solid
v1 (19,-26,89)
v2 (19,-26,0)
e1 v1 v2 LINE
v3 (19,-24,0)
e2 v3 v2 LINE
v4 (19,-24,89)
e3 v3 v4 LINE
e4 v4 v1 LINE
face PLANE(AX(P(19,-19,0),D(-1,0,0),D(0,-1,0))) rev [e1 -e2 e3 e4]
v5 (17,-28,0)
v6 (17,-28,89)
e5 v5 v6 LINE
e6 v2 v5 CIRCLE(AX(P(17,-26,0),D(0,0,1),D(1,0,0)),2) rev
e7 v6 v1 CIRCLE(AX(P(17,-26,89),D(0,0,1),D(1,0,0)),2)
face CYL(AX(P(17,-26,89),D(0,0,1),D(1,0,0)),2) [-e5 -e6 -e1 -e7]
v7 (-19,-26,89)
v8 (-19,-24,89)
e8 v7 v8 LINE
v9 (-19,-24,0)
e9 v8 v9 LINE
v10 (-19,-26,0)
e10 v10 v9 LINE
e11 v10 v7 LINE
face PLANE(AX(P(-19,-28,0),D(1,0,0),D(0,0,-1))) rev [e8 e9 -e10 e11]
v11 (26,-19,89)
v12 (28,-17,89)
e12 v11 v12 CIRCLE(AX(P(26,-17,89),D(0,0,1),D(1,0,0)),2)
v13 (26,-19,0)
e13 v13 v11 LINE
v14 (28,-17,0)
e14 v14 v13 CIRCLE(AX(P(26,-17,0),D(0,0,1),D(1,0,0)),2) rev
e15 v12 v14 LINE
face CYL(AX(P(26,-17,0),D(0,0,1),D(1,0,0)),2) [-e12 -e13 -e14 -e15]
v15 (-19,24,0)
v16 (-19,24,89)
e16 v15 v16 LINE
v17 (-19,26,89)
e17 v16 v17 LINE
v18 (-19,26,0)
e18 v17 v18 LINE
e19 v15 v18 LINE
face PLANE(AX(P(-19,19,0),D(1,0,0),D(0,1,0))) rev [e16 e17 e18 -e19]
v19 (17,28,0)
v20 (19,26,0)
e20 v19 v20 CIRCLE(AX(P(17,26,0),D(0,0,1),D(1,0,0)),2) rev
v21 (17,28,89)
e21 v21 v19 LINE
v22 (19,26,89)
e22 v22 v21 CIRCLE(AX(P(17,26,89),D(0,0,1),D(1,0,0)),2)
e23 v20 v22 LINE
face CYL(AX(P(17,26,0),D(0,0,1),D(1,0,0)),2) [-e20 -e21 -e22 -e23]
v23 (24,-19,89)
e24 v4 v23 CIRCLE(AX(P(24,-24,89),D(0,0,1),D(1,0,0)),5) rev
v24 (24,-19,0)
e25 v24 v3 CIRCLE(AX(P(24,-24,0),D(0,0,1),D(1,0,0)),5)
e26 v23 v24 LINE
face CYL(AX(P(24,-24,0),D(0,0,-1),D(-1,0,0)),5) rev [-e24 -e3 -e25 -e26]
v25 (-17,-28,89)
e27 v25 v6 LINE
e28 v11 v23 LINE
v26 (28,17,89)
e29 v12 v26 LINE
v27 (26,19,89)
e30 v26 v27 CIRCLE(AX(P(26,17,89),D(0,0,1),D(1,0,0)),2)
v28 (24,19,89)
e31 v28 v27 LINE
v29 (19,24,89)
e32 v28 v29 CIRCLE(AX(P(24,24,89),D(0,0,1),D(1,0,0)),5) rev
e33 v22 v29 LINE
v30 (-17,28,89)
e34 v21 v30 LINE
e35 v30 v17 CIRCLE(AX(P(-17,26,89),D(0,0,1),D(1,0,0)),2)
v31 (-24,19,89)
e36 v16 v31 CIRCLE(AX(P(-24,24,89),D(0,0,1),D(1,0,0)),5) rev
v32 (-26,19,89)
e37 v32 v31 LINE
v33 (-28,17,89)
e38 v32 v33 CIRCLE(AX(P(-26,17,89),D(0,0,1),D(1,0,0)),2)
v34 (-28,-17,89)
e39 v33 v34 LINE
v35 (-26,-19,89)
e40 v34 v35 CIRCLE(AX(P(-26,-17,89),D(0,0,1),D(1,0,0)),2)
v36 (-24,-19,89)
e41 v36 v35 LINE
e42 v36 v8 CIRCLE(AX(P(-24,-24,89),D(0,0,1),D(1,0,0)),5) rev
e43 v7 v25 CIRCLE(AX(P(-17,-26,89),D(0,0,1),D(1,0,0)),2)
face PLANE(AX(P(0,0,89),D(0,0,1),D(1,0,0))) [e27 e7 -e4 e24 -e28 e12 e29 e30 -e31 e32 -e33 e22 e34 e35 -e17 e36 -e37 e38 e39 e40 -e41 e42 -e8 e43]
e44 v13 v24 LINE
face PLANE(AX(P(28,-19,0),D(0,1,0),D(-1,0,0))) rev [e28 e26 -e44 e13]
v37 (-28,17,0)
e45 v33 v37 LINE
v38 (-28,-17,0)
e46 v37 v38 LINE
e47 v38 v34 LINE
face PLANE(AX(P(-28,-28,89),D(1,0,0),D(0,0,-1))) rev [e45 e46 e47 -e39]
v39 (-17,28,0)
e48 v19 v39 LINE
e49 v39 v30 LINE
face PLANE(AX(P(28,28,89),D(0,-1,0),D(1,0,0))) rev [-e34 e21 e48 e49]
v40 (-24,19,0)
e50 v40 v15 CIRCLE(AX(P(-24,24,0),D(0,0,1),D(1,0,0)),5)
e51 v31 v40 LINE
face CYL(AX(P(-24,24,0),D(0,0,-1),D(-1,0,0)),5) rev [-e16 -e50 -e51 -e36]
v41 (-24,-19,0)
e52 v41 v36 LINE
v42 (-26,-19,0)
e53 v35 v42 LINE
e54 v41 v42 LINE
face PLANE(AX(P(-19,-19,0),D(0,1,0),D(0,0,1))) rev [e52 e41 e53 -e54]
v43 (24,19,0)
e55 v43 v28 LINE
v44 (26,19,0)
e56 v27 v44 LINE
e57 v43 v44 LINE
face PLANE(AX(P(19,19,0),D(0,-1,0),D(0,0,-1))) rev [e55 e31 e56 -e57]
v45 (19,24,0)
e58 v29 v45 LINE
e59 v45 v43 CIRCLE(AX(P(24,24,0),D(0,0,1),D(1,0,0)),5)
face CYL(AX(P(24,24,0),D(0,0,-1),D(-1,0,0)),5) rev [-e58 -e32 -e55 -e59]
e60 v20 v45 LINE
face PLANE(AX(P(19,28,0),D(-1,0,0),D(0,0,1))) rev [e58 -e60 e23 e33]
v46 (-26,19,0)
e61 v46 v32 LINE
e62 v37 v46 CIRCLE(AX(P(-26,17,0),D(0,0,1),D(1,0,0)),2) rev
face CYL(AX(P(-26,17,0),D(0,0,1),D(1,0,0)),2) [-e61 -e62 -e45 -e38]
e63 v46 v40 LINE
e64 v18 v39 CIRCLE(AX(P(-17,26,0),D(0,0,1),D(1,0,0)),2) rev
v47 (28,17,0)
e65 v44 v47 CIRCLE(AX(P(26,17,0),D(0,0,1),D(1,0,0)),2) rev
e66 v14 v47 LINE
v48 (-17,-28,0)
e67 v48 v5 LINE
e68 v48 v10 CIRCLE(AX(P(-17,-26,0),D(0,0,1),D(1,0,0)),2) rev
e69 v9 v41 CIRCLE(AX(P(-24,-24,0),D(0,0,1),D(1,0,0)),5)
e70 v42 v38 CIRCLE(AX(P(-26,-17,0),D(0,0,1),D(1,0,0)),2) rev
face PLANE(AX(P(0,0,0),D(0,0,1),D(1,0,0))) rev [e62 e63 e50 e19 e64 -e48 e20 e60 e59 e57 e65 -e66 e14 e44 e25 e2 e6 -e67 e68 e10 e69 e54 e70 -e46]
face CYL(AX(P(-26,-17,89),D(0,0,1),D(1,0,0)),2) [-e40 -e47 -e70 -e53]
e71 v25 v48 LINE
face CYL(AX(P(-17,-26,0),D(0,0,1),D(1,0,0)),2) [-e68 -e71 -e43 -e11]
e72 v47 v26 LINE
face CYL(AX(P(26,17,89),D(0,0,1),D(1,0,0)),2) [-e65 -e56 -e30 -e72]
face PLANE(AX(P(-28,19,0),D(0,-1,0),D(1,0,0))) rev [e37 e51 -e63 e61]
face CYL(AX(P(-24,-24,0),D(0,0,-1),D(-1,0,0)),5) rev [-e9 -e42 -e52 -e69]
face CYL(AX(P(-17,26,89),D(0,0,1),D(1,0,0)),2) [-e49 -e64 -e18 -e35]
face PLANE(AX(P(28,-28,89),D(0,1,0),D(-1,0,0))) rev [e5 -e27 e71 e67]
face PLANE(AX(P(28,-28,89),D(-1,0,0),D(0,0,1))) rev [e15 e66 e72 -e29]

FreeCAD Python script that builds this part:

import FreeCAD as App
import Part
import Sketcher
from FreeCAD import Vector
Q = App.Units.Quantity


def edges_at(feature, points):
    """Names of the edges that pass closest to the given points."""
    edges = feature.Shape.Edges
    near = lambda p: min(range(len(edges)), key=lambda i: edges[i].distToShape(Part.Vertex(*p))[0])
    return sorted({f"Edge{near(p) + 1}" for p in points})

doc = App.newDocument("Part")
params = doc.addObject("Spreadsheet::Sheet", "Params")
for row, (alias, value) in enumerate([
    ("sketch1_width", "56 mm"),
    ("pad1_length", "89 mm"),
    ("sketch2_width", "9 mm"),
    ("pocket1_length", "89 mm"),
    ("fillet_radius", "5 mm"),
    ("fillet2_radius", "2 mm"),
], start=1):
    params.set(f"A{row}", alias)
    params.set(f"B{row}", "=" + value)
    params.setAlias(f"B{row}", alias)

body = doc.addObject("PartDesign::Body", "Body")

# Sketch on XY plane
sketch1 = doc.addObject("Sketcher::SketchObject", "Sketch")
body.addObject(sketch1)
sketch1.AttachmentSupport = (doc.XY_Plane, [""])
sketch1.MapMode = "FlatFace"
sketch1.addGeometry(Part.LineSegment(Vector(-28, 28, 0), Vector(-28, -28, 0)), False)
sketch1.addGeometry(Part.LineSegment(Vector(-28, -28, 0), Vector(28, -28, 0)), False)
sketch1.addGeometry(Part.LineSegment(Vector(28, -28, 0), Vector(28, 28, 0)), False)
sketch1.addGeometry(Part.LineSegment(Vector(28, 28, 0), Vector(-28, 28, 0)), False)
sketch1.addConstraint(Sketcher.Constraint("Coincident", 0, 2, 1, 1))
sketch1.addConstraint(Sketcher.Constraint("Coincident", 1, 2, 2, 1))
sketch1.addConstraint(Sketcher.Constraint("Coincident", 2, 2, 3, 1))
sketch1.addConstraint(Sketcher.Constraint("Coincident", 3, 2, 0, 1))
sketch1.addConstraint(Sketcher.Constraint("Vertical", 0))
sketch1.addConstraint(Sketcher.Constraint("Horizontal", 1))
sketch1.addConstraint(Sketcher.Constraint("Vertical", 2))
sketch1.addConstraint(Sketcher.Constraint("Horizontal", 3))
sketch1.addConstraint(Sketcher.Constraint("Symmetric", 0, 2, 2, 2, -1, 1))
sketch1.addConstraint(Sketcher.Constraint("Equal", 3, 0))
sketch1.addConstraint(Sketcher.Constraint("DistanceX", 1, 1, 1, 2, Q("56 mm")))
sketch1.setExpression("Constraints[10]", "Params.sketch1_width")
pad1 = doc.addObject("PartDesign::Pad", "Pad")
body.addObject(pad1)
pad1.Profile = sketch1
pad1.setExpression("Length", "Params.pad1_length")

# Sketch on XY plane
sketch2 = doc.addObject("Sketcher::SketchObject", "Sketch001")
body.addObject(sketch2)
sketch2.AttachmentSupport = (doc.XY_Plane, [""])
sketch2.MapMode = "FlatFace"
sketch2.AttachmentOffset = App.Placement(Vector(0, 0, 89), App.Rotation())
sketch2.addGeometry(Part.LineSegment(Vector(19, 28, 0), Vector(19, 19, 0)), False)
sketch2.addGeometry(Part.LineSegment(Vector(19, 19, 0), Vector(28, 19, 0)), False)
sketch2.addGeometry(Part.LineSegment(Vector(28, 19, 0), Vector(28, 28, 0)), False)
sketch2.addGeometry(Part.LineSegment(Vector(28, 28, 0), Vector(19, 28, 0)), False)
sketch2.addConstraint(Sketcher.Constraint("Coincident", 0, 2, 1, 1))
sketch2.addConstraint(Sketcher.Constraint("Coincident", 1, 2, 2, 1))
sketch2.addConstraint(Sketcher.Constraint("Coincident", 2, 2, 3, 1))
sketch2.addConstraint(Sketcher.Constraint("Coincident", 3, 2, 0, 1))
sketch2.addConstraint(Sketcher.Constraint("Vertical", 0))
sketch2.addConstraint(Sketcher.Constraint("Horizontal", 1))
sketch2.addConstraint(Sketcher.Constraint("Vertical", 2))
sketch2.addConstraint(Sketcher.Constraint("Horizontal", 3))
sketch2.addConstraint(Sketcher.Constraint("Equal", 3, 0))
sketch2.addConstraint(Sketcher.Constraint("DistanceX", 1, 1, 1, 2, Q("9 mm")))
sketch2.addConstraint(Sketcher.Constraint("DistanceX", -1, 1, 0, 2, Q("19 mm")))
sketch2.addConstraint(Sketcher.Constraint("DistanceY", -1, 1, 0, 2, Q("19 mm")))
sketch2.setExpression("Constraints[9]", "Params.sketch2_width")
pocket1 = doc.addObject("PartDesign::Pocket", "Pocket")
body.addObject(pocket1)
pocket1.Profile = sketch2
pocket1.setExpression("Length", "Params.pocket1_length")
doc.recompute()

polarpattern = doc.addObject("PartDesign::PolarPattern", "PolarPattern")
body.addObject(polarpattern)
polarpattern.Originals = [pocket1]
polarpattern.Axis = (doc.Z_Axis, [""])
polarpattern.Angle = 360
polarpattern.Occurrences = 4
body.Tip = polarpattern
doc.recompute()

fillet = doc.addObject("PartDesign::Fillet", "Fillet")
body.addObject(fillet)
fillet.Base = (polarpattern, edges_at(polarpattern, [
    (19, 19, 44.5),
    (-19, 19, 44.5),
    (-19, -19, 44.5),
    (19, -19, 44.5),
]))
fillet.setExpression("Radius", "Params.fillet_radius")
doc.recompute()

fillet2 = doc.addObject("PartDesign::Fillet", "Fillet001")
body.addObject(fillet2)
fillet2.Base = (fillet, edges_at(fillet, [
    (19, 28, 44.5),
    (28, 19, 44.5),
    (-28, 19, 44.5),
    (-19, 28, 44.5),
    (-19, -28, 44.5),
    (-28, -19, 44.5),
    (28, -19, 44.5),
    (19, -28, 44.5),
]))
fillet2.setExpression("Radius", "Params.fillet2_radius")

doc.recompute()
